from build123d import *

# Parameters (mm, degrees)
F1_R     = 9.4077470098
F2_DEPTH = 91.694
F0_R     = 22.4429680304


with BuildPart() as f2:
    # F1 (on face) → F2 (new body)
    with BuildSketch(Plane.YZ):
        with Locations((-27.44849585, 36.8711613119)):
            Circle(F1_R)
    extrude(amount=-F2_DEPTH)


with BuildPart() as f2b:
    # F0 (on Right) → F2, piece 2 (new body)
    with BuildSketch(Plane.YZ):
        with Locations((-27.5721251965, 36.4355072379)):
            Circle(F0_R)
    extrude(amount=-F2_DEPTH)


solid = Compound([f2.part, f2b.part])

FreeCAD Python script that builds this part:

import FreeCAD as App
import Part
import Sketcher
from FreeCAD import Vector
Q = App.Units.Quantity

doc = App.newDocument("Part")
body = doc.addObject("PartDesign::Body", "Body")

sketch1 = body.newObject("Sketcher::SketchObject", "Sketch")
sketch1.AttachmentSupport = (doc.getObject("YZ_Plane"), [""])
sketch1.MapMode = "FlatFace"
sketch1.addGeometry(Part.Circle(Vector(-27.448496, 36.871161, 0), Vector(0, 0, 1), 9.407747), False)
sketch1.addConstraint([
    Sketcher.Constraint("Diameter", 0, 18.815494),
    Sketcher.Constraint("DistanceY", -1, 1, 0, 3, 36.871161),
    Sketcher.Constraint("DistanceX", 0, 3, -1, 1, 27.448496),
])
pad1 = body.newObject("PartDesign::Pad", "Pad")
pad1.Profile = sketch1
pad1.Length = Q("3.61 in")
pad1.Reversed = True
body2 = doc.addObject("PartDesign::Body", "Body001")

sketch2 = body2.newObject("Sketcher::SketchObject", "Sketch001")
sketch2.AttachmentSupport = (doc.getObject("YZ_Plane001"), [""])
sketch2.MapMode = "FlatFace"
sketch2.addGeometry(Part.Circle(Vector(-27.572125, 36.435507, 0), Vector(0, 0, 1), 22.442968), False)
sketch2.addConstraint([
    Sketcher.Constraint("Diameter", 0, 44.885936),
    Sketcher.Constraint("DistanceX", 0, 3, -1, 1, 27.572125),
    Sketcher.Constraint("DistanceY", -1, 1, 0, 3, 36.435507),
])
pad2 = body2.newObject("PartDesign::Pad", "Pad001")
pad2.Profile = sketch2
pad2.Length = Q("3.61 in")
pad2.Reversed = True

doc.recompute()
